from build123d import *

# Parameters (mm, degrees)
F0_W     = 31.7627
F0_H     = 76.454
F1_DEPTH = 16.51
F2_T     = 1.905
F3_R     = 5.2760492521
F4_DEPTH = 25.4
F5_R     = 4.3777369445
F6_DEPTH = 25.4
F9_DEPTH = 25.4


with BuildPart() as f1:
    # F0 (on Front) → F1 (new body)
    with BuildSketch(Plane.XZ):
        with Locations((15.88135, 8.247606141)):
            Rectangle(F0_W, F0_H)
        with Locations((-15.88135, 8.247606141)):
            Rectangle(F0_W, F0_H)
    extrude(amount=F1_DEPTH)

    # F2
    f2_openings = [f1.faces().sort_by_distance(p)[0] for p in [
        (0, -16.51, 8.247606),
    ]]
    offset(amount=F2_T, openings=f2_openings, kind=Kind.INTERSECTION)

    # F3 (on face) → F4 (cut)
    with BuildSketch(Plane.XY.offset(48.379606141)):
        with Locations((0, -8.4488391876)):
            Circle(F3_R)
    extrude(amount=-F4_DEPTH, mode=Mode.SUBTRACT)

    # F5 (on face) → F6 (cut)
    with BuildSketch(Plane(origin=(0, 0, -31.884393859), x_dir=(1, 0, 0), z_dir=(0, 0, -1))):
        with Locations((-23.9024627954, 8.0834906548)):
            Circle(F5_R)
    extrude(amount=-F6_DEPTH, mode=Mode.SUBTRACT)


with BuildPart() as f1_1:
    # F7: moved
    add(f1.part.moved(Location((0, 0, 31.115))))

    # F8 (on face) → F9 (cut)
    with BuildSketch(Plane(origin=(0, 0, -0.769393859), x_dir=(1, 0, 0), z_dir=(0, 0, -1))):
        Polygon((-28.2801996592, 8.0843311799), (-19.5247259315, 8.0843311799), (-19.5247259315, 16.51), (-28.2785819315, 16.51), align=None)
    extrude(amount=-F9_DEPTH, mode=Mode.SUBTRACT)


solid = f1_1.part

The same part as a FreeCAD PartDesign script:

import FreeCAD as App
import Part
import Sketcher
Q = App.Units.Quantity


def faces_at(feature, points):
    """Names of the faces that lie closest to the given points."""
    faces = feature.Shape.Faces
    near = lambda p: min(range(len(faces)), key=lambda i: faces[i].distToShape(Part.Vertex(*p))[0])
    return sorted({f"Face{near(p) + 1}" for p in points})

doc = App.newDocument("Part")
body = doc.addObject("PartDesign::Body", "Body")

# Sketch on XZ plane
sketch1 = body.newObject("Sketcher::SketchObject", "Sketch")
sketch1.AttachmentSupport = (doc.getObject("XZ_Plane"), [""])
sketch1.MapMode = "FlatFace"
sketch1.addGeometry(Part.LineSegment(App.Vector(32, -30, 0), App.Vector(32, 46, 0)), False)
sketch1.addGeometry(Part.LineSegment(App.Vector(32, 46, 0), App.Vector(-32, 46, 0)), False)
sketch1.addGeometry(Part.LineSegment(App.Vector(-32, 46, 0), App.Vector(-32, -30, 0)), False)
sketch1.addGeometry(Part.LineSegment(App.Vector(-32, -30, 0), App.Vector(32, -30, 0)), False)
sketch1.addConstraint(Sketcher.Constraint("Coincident", 0, 2, 1, 1))
sketch1.addConstraint(Sketcher.Constraint("Coincident", 1, 2, 2, 1))
sketch1.addConstraint(Sketcher.Constraint("Coincident", 2, 2, 3, 1))
sketch1.addConstraint(Sketcher.Constraint("Coincident", 3, 2, 0, 1))
sketch1.addConstraint(Sketcher.Constraint("Vertical", 0))
sketch1.addConstraint(Sketcher.Constraint("Horizontal", 1))
sketch1.addConstraint(Sketcher.Constraint("Vertical", 2))
sketch1.addConstraint(Sketcher.Constraint("Horizontal", 3))
sketch1.addConstraint(Sketcher.Constraint("DistanceY", 0, 1, 0, 2, Q("3.01 in")))
sketch1.addConstraint(Sketcher.Constraint("DistanceX", 1, 2, 1, 1, Q("2.501 in")))
sketch1.addConstraint(Sketcher.Constraint("DistanceX", -1, 1, 0, 2, Q("1.2505 in")))
sketch1.addConstraint(Sketcher.Constraint("DistanceY", -1, 1, 0, 2, 46.474606))
pad1 = body.newObject("PartDesign::Pad", "Pad")
pad1.Profile = sketch1
pad1.Length = Q("0.65 in")
doc.recompute()

thickness = body.newObject("PartDesign::Thickness", "Thickness")
thickness.Base = (pad1, faces_at(pad1, [(0, -16.51, 8.248)]))
thickness.Value = Q("0.075 in")
thickness.Reversed = False
thickness.Join = "Intersection"

# Sketch on XY plane
sketch2 = body.newObject("Sketcher::SketchObject", "Sketch001")
sketch2.AttachmentSupport = (doc.getObject("XY_Plane"), [""])
sketch2.MapMode = "FlatFace"
sketch2.AttachmentOffset = App.Placement(App.Vector(0, 0, 48.379606), App.Rotation())
sketch2.addGeometry(Part.Circle(App.Vector(0, -8, 0), App.Vector(0, 0, 1), 5), False)
sketch2.addConstraint(Sketcher.Constraint("PointOnObject", 0, 3, -2))
sketch2.addConstraint(Sketcher.Constraint("Diameter", 0, 10.552099))
sketch2.addConstraint(Sketcher.Constraint("DistanceY", 0, 3, -1, 1, 8.448839))
pocket1 = body.newObject("PartDesign::Pocket", "Pocket")
pocket1.Profile = sketch2
pocket1.Length = Q("1 in")

# Sketch on XY plane
sketch3 = body.newObject("Sketcher::SketchObject", "Sketch002")
sketch3.AttachmentSupport = (doc.getObject("XY_Plane"), [""])
sketch3.MapMode = "FlatFace"
sketch3.AttachmentOffset = App.Placement(App.Vector(0, 0, -31.884394), App.Rotation())
sketch3.addGeometry(Part.Circle(App.Vector(-23.9, -8.1, 0), App.Vector(0, 0, 1), 4.4), False)
sketch3.addConstraint(Sketcher.Constraint("Diameter", 0, 8.755474))
sketch3.addConstraint(Sketcher.Constraint("DistanceY", 0, 3, -1, 1, 8.083491))
sketch3.addConstraint(Sketcher.Constraint("DistanceX", 0, 3, -1, 1, 23.902463))
pocket2 = body.newObject("PartDesign::Pocket", "Pocket001")
pocket2.Profile = sketch3
pocket2.Length = Q("1 in")
pocket2.Reversed = True
body2 = doc.addObject("PartDesign::Body", "Body001")
doc.recompute()

body.Placement = App.Placement(App.Vector(0, 0, 31.115), App.Rotation(App.Vector(0, 0, 1), 0))
boolean = body2.newObject("PartDesign::Boolean", "Boolean")
boolean.Type = "Fuse"
boolean.addObjects([body])

# Sketch on XY plane
sketch4 = body2.newObject("Sketcher::SketchObject", "Sketch003")
sketch4.AttachmentSupport = (doc.getObject("XY_Plane001"), [""])
sketch4.MapMode = "FlatFace"
sketch4.AttachmentOffset = App.Placement(App.Vector(0, 0, -0.769394), App.Rotation())
sketch4.addGeometry(Part.LineSegment(App.Vector(-28, -8, 0), App.Vector(-20, -8, 0)), False)
sketch4.addGeometry(Part.LineSegment(App.Vector(-20, -8, 0), App.Vector(-20, -17, 0)), False)
sketch4.addGeometry(Part.LineSegment(App.Vector(-20, -17, 0), App.Vector(-28, -17, 0)), False)
sketch4.addGeometry(Part.LineSegment(App.Vector(-28, -17, 0), App.Vector(-28, -8, 0)), False)
sketch4.addConstraint(Sketcher.Constraint("Coincident", 0, 2, 1, 1))
sketch4.addConstraint(Sketcher.Constraint("Coincident", 1, 2, 2, 1))
sketch4.addConstraint(Sketcher.Constraint("Coincident", 2, 2, 3, 1))
sketch4.addConstraint(Sketcher.Constraint("Coincident", 3, 2, 0, 1))
sketch4.addConstraint(Sketcher.Constraint("Horizontal", 0))
sketch4.addConstraint(Sketcher.Constraint("Vertical", 1))
sketch4.addConstraint(Sketcher.Constraint("Horizontal", 2))
sketch4.addConstraint(Sketcher.Constraint("DistanceY", 1, 2, -1, 1, Q("0.65 in")))
sketch4.addConstraint(Sketcher.Constraint("DistanceY", 1, 2, 1, 1, 8.425669))
sketch4.addConstraint(Sketcher.Constraint("DistanceX", 3, 2, -1, 1, 28.2802))
sketch4.addConstraint(Sketcher.Constraint("DistanceX", 0, 1, 0, 2, 8.755474))
sketch4.addConstraint(Sketcher.Constraint("DistanceX", 2, 2, 2, 1, 8.753856))
pocket3 = body2.newObject("PartDesign::Pocket", "Pocket002")
pocket3.Profile = sketch4
pocket3.Length = Q("1 in")
pocket3.Reversed = True

doc.recompute()
